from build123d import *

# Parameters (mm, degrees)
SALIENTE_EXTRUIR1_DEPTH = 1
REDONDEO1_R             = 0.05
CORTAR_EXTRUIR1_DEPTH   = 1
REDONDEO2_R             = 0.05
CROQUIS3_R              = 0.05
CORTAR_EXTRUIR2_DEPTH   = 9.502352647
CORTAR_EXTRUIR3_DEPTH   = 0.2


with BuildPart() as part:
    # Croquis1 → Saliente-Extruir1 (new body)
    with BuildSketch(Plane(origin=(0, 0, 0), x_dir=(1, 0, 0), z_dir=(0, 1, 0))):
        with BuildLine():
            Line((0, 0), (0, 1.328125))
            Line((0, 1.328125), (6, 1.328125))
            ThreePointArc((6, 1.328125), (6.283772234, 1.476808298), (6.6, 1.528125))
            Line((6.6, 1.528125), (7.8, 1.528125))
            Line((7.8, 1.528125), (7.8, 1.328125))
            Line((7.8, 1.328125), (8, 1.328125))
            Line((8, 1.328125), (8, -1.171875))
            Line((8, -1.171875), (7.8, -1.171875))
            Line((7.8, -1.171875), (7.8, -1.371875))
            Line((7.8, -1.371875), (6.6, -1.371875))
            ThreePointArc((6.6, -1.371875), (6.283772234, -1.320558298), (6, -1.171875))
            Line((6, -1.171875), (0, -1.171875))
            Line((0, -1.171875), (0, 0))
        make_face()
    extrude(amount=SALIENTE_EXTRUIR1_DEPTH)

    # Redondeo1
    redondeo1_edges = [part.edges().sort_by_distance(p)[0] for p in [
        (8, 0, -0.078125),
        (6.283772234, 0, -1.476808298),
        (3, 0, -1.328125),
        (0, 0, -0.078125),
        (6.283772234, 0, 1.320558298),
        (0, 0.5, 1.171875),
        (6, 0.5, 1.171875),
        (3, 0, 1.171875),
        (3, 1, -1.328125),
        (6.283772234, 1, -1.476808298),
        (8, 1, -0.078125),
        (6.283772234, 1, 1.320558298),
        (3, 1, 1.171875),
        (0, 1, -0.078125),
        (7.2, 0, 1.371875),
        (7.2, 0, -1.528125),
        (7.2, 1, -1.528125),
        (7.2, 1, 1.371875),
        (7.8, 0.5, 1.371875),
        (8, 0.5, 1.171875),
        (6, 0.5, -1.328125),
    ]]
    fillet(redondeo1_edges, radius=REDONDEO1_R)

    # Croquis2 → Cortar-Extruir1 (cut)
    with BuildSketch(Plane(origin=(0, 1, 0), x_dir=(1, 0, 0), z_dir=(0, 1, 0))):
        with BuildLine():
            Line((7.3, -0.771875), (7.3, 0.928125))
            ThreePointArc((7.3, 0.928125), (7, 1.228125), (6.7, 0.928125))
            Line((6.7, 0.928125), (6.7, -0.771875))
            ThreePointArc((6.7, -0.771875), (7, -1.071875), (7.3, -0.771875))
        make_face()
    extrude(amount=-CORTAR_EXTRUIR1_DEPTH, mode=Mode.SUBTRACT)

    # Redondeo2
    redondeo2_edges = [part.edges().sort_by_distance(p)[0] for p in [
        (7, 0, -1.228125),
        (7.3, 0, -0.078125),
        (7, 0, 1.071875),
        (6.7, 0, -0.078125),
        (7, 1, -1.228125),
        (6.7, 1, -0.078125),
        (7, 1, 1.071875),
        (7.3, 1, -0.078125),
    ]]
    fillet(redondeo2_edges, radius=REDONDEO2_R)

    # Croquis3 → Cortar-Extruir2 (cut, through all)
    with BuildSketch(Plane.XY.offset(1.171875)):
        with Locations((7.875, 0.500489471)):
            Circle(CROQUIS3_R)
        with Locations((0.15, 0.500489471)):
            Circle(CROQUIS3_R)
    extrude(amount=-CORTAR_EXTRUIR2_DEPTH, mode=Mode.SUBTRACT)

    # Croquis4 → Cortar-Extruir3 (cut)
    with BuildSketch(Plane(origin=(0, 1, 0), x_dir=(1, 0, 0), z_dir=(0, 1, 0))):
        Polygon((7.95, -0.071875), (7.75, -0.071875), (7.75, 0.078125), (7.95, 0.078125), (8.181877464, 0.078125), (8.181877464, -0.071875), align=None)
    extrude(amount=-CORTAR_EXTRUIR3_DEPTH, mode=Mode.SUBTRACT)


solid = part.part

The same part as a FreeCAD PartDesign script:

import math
import FreeCAD as App
import Part
import Sketcher


def edges_at(feature, points):
    """Names of the edges that pass closest to the given points."""
    edges = feature.Shape.Edges
    near = lambda p: min(range(len(edges)), key=lambda i: edges[i].distToShape(Part.Vertex(*p))[0])
    return sorted({f"Edge{near(p) + 1}" for p in points})


def add_polygon(sketch, points):
    """Adds a closed chain of lines whose ends are joined by coincident constraints."""
    first, n = sketch.GeometryCount, len(points)
    for a, b in zip(points, points[1:] + points[:1]):
        sketch.addGeometry(Part.LineSegment(App.Vector(*a, 0), App.Vector(*b, 0)), False)
    for i in range(n):
        sketch.addConstraint(Sketcher.Constraint("Coincident", first + i, 2, first + (i + 1) % n, 1))

doc = App.newDocument("Part")
body = doc.addObject("PartDesign::Body", "Body")

# Sketch on XZ plane
sketch1 = body.newObject("Sketcher::SketchObject", "Sketch")
sketch1.AttachmentSupport = (doc.getObject("XZ_Plane"), [""])
sketch1.MapMode = "FlatFace"
sketch1.addGeometry(Part.LineSegment(App.Vector(6, -1.328125, 0), App.Vector(0, -1.328125, 0)), False)
sketch1.addGeometry(Part.LineSegment(App.Vector(0, -1.328125, 0), App.Vector(0, 1.171875, 0)), False)
sketch1.addGeometry(Part.LineSegment(App.Vector(0, 1.171875, 0), App.Vector(6, 1.171875, 0)), False)
sketch1.addGeometry(Part.ArcOfCircle(Part.Circle(App.Vector(6.6, 0.371875, 0), App.Vector(0, 0, 1), 1), math.radians(90), math.radians(126.869898)), False)
sketch1.addGeometry(Part.LineSegment(App.Vector(6.6, 1.371875, 0), App.Vector(7.8, 1.371875, 0)), False)
sketch1.addGeometry(Part.LineSegment(App.Vector(7.8, 1.371875, 0), App.Vector(7.8, 1.171875, 0)), False)
sketch1.addGeometry(Part.LineSegment(App.Vector(7.8, 1.171875, 0), App.Vector(8, 1.171875, 0)), False)
sketch1.addGeometry(Part.LineSegment(App.Vector(8, 1.171875, 0), App.Vector(8, -1.328125, 0)), False)
sketch1.addGeometry(Part.LineSegment(App.Vector(8, -1.328125, 0), App.Vector(7.8, -1.328125, 0)), False)
sketch1.addGeometry(Part.LineSegment(App.Vector(7.8, -1.328125, 0), App.Vector(7.8, -1.528125, 0)), False)
sketch1.addGeometry(Part.LineSegment(App.Vector(7.8, -1.528125, 0), App.Vector(6.6, -1.528125, 0)), False)
sketch1.addGeometry(Part.ArcOfCircle(Part.Circle(App.Vector(6.6, -0.528125, 0), App.Vector(0, 0, 1), 1), math.radians(-126.869898), math.radians(-90)), False)
sketch1.addConstraint(Sketcher.Constraint("Coincident", 0, 2, 1, 1))
sketch1.addConstraint(Sketcher.Constraint("Coincident", 1, 2, 2, 1))
sketch1.addConstraint(Sketcher.Constraint("Coincident", 2, 2, 3, 2))
sketch1.addConstraint(Sketcher.Constraint("Tangent", 3, 1, 4, 1))
sketch1.addConstraint(Sketcher.Constraint("Coincident", 4, 2, 5, 1))
sketch1.addConstraint(Sketcher.Constraint("Coincident", 5, 2, 6, 1))
sketch1.addConstraint(Sketcher.Constraint("Coincident", 6, 2, 7, 1))
sketch1.addConstraint(Sketcher.Constraint("Coincident", 7, 2, 8, 1))
sketch1.addConstraint(Sketcher.Constraint("Coincident", 8, 2, 9, 1))
sketch1.addConstraint(Sketcher.Constraint("Coincident", 9, 2, 10, 1))
sketch1.addConstraint(Sketcher.Constraint("Tangent", 10, 2, 11, 2))
sketch1.addConstraint(Sketcher.Constraint("Coincident", 11, 1, 0, 1))
sketch1.addConstraint(Sketcher.Constraint("Horizontal", 0))
sketch1.addConstraint(Sketcher.Constraint("Vertical", 1))
sketch1.addConstraint(Sketcher.Constraint("Horizontal", 2))
sketch1.addConstraint(Sketcher.Constraint("Horizontal", 4))
sketch1.addConstraint(Sketcher.Constraint("Vertical", 5))
sketch1.addConstraint(Sketcher.Constraint("Horizontal", 6))
sketch1.addConstraint(Sketcher.Constraint("Vertical", 7))
sketch1.addConstraint(Sketcher.Constraint("Horizontal", 8))
sketch1.addConstraint(Sketcher.Constraint("Vertical", 9))
sketch1.addConstraint(Sketcher.Constraint("Horizontal", 10))
sketch1.addConstraint(Sketcher.Constraint("Equal", 3, 11))
sketch1.addConstraint(Sketcher.Constraint("PointOnObject", 0, 2, -2))
sketch1.addConstraint(Sketcher.Constraint("Horizontal", 2, 2, 5, 2))
sketch1.addConstraint(Sketcher.Constraint("Horizontal", 0, 2, 7, 2))
sketch1.addConstraint(Sketcher.Constraint("Vertical", 3, 3, 11, 3))
sketch1.addConstraint(Sketcher.Constraint("Vertical", 5, 2, 8, 2))
sketch1.addConstraint(Sketcher.Constraint("Vertical", 2, 2, 11, 1))
sketch1.addConstraint(Sketcher.Constraint("Equal", 8, 5))
sketch1.addConstraint(Sketcher.Constraint("Radius", 3, 1.0))
sketch1.addConstraint(Sketcher.Constraint("DistanceX", 0, 2, 0, 1, 6.0))
sketch1.addConstraint(Sketcher.Constraint("DistanceX", 4, 1, 4, 2, 1.2))
sketch1.addConstraint(Sketcher.Constraint("DistanceX", 6, 1, 6, 2, 0.2))
sketch1.addConstraint(Sketcher.Constraint("DistanceY", 1, 1, 1, 2, 2.5))
sketch1.addConstraint(Sketcher.Constraint("DistanceY", -1, 1, 3, 3, 0.371875))
pad1 = body.newObject("PartDesign::Pad", "Pad")
pad1.Profile = sketch1
pad1.Length = 1
pad1.Reversed = True
doc.recompute()

fillet = body.newObject("PartDesign::Fillet", "Fillet")
fillet.Base = (pad1, edges_at(pad1, [
    (8, 0, -0.078),
    (6.284, 0, -1.477),
    (3, 0, -1.328),
    (0, 0, -0.078),
    (6.284, 0, 1.321),
    (0, 0.5, 1.172),
    (6, 0.5, 1.172),
    (3, 0, 1.172),
    (3, 1, -1.328),
    (6.284, 1, -1.477),
    (8, 1, -0.078),
    (6.284, 1, 1.321),
    (3, 1, 1.172),
    (0, 1, -0.078),
    (7.2, 0, 1.372),
    (7.2, 0, -1.528),
    (7.2, 1, -1.528),
    (7.2, 1, 1.372),
    (7.8, 0.5, 1.372),
    (8, 0.5, 1.172),
    (6, 0.5, -1.328),
]))
fillet.Radius = 0.05

# Sketch on XZ plane
sketch2 = body.newObject("Sketcher::SketchObject", "Sketch001")
sketch2.AttachmentSupport = (doc.getObject("XZ_Plane"), [""])
sketch2.MapMode = "FlatFace"
sketch2.AttachmentOffset = App.Placement(App.Vector(0, 0, -1), App.Rotation())
sketch2.addGeometry(Part.LineSegment(App.Vector(7.3, 0.771875, 0), App.Vector(7.3, -0.928125, 0)), False)
sketch2.addGeometry(Part.ArcOfCircle(Part.Circle(App.Vector(7, -0.928125, 0), App.Vector(0, 0, 1), 0.3), math.radians(180), math.radians(360)), False)
sketch2.addGeometry(Part.LineSegment(App.Vector(6.7, -0.928125, 0), App.Vector(6.7, 0.771875, 0)), False)
sketch2.addGeometry(Part.ArcOfCircle(Part.Circle(App.Vector(7, 0.771875, 0), App.Vector(0, 0, 1), 0.3), math.radians(0), math.radians(180)), False)
sketch2.addConstraint(Sketcher.Constraint("Tangent", 0, 2, 1, 2))
sketch2.addConstraint(Sketcher.Constraint("Tangent", 1, 1, 2, 1))
sketch2.addConstraint(Sketcher.Constraint("Tangent", 2, 2, 3, 2))
sketch2.addConstraint(Sketcher.Constraint("Tangent", 3, 1, 0, 1))
sketch2.addConstraint(Sketcher.Constraint("Vertical", 0))
sketch2.addConstraint(Sketcher.Constraint("Vertical", 2))
sketch2.addConstraint(Sketcher.Constraint("Radius", 1, 0.3))
sketch2.addConstraint(Sketcher.Constraint("DistanceY", 0, 2, 0, 1, 1.7))
sketch2.addConstraint(Sketcher.Constraint("DistanceX", -1, 1, 1, 3, 7.0))
sketch2.addConstraint(Sketcher.Constraint("DistanceY", 1, 3, -1, 1, 0.928125))
pocket1 = body.newObject("PartDesign::Pocket", "Pocket")
pocket1.Profile = sketch2
pocket1.Length = 1
pocket1.Reversed = True
doc.recompute()

fillet2 = body.newObject("PartDesign::Fillet", "Fillet001")
fillet2.Base = (pocket1, edges_at(pocket1, [
    (7, 0, -1.228),
    (7.3, 0, -0.078),
    (7, 0, 1.072),
    (6.7, 0, -0.078),
    (7, 1, -1.228),
    (6.7, 1, -0.078),
    (7, 1, 1.072),
    (7.3, 1, -0.078),
]))
fillet2.Radius = 0.05

# Sketch on XY plane
sketch3 = body.newObject("Sketcher::SketchObject", "Sketch002")
sketch3.AttachmentSupport = (doc.getObject("XY_Plane"), [""])
sketch3.MapMode = "FlatFace"
sketch3.AttachmentOffset = App.Placement(App.Vector(0, 0, 1.171875), App.Rotation())
sketch3.addGeometry(Part.Circle(App.Vector(7.875, 0.500489, 0), App.Vector(0, 0, 1), 0.05), False)
sketch3.addGeometry(Part.Circle(App.Vector(0.15, 0.500489, 0), App.Vector(0, 0, 1), 0.05), False)
sketch3.addConstraint(Sketcher.Constraint("Equal", 0, 1))
sketch3.addConstraint(Sketcher.Constraint("Horizontal", 0, 3, 1, 3))
sketch3.addConstraint(Sketcher.Constraint("Diameter", 0, 0.1))
sketch3.addConstraint(Sketcher.Constraint("DistanceX", -1, 1, 1, 3, 0.15))
sketch3.addConstraint(Sketcher.Constraint("DistanceX", -1, 1, 0, 3, 7.875))
sketch3.addConstraint(Sketcher.Constraint("DistanceY", -1, 1, 0, 3, 0.500489))
pocket2 = body.newObject("PartDesign::Pocket", "Pocket001")
pocket2.Profile = sketch3
pocket2.Type = "ThroughAll"

# Sketch on XZ plane
sketch4 = body.newObject("Sketcher::SketchObject", "Sketch003")
sketch4.AttachmentSupport = (doc.getObject("XZ_Plane"), [""])
sketch4.MapMode = "FlatFace"
sketch4.AttachmentOffset = App.Placement(App.Vector(0, 0, -1), App.Rotation())
add_polygon(sketch4, [(7.75, 0.071875), (8.181877, 0.071875), (8.181877, -0.078125), (7.75, -0.078125)])  # lines 0-3
sketch4.addConstraint(Sketcher.Constraint("Horizontal", 0))
sketch4.addConstraint(Sketcher.Constraint("Vertical", 1))
sketch4.addConstraint(Sketcher.Constraint("Horizontal", 2))
sketch4.addConstraint(Sketcher.Constraint("Vertical", 3))
sketch4.addConstraint(Sketcher.Constraint("DistanceY", 1, 2, 1, 1, 0.15))
sketch4.addConstraint(Sketcher.Constraint("DistanceX", -1, 1, 2, 2, 7.75))
sketch4.addConstraint(Sketcher.Constraint("DistanceX", 0, 1, 0, 2, 0.431877))
sketch4.addConstraint(Sketcher.Constraint("DistanceY", -1, 1, 0, 2, 0.071875))
pocket3 = body.newObject("PartDesign::Pocket", "Pocket002")
pocket3.Profile = sketch4
pocket3.Length = 0.2
pocket3.Reversed = True

doc.recompute()
